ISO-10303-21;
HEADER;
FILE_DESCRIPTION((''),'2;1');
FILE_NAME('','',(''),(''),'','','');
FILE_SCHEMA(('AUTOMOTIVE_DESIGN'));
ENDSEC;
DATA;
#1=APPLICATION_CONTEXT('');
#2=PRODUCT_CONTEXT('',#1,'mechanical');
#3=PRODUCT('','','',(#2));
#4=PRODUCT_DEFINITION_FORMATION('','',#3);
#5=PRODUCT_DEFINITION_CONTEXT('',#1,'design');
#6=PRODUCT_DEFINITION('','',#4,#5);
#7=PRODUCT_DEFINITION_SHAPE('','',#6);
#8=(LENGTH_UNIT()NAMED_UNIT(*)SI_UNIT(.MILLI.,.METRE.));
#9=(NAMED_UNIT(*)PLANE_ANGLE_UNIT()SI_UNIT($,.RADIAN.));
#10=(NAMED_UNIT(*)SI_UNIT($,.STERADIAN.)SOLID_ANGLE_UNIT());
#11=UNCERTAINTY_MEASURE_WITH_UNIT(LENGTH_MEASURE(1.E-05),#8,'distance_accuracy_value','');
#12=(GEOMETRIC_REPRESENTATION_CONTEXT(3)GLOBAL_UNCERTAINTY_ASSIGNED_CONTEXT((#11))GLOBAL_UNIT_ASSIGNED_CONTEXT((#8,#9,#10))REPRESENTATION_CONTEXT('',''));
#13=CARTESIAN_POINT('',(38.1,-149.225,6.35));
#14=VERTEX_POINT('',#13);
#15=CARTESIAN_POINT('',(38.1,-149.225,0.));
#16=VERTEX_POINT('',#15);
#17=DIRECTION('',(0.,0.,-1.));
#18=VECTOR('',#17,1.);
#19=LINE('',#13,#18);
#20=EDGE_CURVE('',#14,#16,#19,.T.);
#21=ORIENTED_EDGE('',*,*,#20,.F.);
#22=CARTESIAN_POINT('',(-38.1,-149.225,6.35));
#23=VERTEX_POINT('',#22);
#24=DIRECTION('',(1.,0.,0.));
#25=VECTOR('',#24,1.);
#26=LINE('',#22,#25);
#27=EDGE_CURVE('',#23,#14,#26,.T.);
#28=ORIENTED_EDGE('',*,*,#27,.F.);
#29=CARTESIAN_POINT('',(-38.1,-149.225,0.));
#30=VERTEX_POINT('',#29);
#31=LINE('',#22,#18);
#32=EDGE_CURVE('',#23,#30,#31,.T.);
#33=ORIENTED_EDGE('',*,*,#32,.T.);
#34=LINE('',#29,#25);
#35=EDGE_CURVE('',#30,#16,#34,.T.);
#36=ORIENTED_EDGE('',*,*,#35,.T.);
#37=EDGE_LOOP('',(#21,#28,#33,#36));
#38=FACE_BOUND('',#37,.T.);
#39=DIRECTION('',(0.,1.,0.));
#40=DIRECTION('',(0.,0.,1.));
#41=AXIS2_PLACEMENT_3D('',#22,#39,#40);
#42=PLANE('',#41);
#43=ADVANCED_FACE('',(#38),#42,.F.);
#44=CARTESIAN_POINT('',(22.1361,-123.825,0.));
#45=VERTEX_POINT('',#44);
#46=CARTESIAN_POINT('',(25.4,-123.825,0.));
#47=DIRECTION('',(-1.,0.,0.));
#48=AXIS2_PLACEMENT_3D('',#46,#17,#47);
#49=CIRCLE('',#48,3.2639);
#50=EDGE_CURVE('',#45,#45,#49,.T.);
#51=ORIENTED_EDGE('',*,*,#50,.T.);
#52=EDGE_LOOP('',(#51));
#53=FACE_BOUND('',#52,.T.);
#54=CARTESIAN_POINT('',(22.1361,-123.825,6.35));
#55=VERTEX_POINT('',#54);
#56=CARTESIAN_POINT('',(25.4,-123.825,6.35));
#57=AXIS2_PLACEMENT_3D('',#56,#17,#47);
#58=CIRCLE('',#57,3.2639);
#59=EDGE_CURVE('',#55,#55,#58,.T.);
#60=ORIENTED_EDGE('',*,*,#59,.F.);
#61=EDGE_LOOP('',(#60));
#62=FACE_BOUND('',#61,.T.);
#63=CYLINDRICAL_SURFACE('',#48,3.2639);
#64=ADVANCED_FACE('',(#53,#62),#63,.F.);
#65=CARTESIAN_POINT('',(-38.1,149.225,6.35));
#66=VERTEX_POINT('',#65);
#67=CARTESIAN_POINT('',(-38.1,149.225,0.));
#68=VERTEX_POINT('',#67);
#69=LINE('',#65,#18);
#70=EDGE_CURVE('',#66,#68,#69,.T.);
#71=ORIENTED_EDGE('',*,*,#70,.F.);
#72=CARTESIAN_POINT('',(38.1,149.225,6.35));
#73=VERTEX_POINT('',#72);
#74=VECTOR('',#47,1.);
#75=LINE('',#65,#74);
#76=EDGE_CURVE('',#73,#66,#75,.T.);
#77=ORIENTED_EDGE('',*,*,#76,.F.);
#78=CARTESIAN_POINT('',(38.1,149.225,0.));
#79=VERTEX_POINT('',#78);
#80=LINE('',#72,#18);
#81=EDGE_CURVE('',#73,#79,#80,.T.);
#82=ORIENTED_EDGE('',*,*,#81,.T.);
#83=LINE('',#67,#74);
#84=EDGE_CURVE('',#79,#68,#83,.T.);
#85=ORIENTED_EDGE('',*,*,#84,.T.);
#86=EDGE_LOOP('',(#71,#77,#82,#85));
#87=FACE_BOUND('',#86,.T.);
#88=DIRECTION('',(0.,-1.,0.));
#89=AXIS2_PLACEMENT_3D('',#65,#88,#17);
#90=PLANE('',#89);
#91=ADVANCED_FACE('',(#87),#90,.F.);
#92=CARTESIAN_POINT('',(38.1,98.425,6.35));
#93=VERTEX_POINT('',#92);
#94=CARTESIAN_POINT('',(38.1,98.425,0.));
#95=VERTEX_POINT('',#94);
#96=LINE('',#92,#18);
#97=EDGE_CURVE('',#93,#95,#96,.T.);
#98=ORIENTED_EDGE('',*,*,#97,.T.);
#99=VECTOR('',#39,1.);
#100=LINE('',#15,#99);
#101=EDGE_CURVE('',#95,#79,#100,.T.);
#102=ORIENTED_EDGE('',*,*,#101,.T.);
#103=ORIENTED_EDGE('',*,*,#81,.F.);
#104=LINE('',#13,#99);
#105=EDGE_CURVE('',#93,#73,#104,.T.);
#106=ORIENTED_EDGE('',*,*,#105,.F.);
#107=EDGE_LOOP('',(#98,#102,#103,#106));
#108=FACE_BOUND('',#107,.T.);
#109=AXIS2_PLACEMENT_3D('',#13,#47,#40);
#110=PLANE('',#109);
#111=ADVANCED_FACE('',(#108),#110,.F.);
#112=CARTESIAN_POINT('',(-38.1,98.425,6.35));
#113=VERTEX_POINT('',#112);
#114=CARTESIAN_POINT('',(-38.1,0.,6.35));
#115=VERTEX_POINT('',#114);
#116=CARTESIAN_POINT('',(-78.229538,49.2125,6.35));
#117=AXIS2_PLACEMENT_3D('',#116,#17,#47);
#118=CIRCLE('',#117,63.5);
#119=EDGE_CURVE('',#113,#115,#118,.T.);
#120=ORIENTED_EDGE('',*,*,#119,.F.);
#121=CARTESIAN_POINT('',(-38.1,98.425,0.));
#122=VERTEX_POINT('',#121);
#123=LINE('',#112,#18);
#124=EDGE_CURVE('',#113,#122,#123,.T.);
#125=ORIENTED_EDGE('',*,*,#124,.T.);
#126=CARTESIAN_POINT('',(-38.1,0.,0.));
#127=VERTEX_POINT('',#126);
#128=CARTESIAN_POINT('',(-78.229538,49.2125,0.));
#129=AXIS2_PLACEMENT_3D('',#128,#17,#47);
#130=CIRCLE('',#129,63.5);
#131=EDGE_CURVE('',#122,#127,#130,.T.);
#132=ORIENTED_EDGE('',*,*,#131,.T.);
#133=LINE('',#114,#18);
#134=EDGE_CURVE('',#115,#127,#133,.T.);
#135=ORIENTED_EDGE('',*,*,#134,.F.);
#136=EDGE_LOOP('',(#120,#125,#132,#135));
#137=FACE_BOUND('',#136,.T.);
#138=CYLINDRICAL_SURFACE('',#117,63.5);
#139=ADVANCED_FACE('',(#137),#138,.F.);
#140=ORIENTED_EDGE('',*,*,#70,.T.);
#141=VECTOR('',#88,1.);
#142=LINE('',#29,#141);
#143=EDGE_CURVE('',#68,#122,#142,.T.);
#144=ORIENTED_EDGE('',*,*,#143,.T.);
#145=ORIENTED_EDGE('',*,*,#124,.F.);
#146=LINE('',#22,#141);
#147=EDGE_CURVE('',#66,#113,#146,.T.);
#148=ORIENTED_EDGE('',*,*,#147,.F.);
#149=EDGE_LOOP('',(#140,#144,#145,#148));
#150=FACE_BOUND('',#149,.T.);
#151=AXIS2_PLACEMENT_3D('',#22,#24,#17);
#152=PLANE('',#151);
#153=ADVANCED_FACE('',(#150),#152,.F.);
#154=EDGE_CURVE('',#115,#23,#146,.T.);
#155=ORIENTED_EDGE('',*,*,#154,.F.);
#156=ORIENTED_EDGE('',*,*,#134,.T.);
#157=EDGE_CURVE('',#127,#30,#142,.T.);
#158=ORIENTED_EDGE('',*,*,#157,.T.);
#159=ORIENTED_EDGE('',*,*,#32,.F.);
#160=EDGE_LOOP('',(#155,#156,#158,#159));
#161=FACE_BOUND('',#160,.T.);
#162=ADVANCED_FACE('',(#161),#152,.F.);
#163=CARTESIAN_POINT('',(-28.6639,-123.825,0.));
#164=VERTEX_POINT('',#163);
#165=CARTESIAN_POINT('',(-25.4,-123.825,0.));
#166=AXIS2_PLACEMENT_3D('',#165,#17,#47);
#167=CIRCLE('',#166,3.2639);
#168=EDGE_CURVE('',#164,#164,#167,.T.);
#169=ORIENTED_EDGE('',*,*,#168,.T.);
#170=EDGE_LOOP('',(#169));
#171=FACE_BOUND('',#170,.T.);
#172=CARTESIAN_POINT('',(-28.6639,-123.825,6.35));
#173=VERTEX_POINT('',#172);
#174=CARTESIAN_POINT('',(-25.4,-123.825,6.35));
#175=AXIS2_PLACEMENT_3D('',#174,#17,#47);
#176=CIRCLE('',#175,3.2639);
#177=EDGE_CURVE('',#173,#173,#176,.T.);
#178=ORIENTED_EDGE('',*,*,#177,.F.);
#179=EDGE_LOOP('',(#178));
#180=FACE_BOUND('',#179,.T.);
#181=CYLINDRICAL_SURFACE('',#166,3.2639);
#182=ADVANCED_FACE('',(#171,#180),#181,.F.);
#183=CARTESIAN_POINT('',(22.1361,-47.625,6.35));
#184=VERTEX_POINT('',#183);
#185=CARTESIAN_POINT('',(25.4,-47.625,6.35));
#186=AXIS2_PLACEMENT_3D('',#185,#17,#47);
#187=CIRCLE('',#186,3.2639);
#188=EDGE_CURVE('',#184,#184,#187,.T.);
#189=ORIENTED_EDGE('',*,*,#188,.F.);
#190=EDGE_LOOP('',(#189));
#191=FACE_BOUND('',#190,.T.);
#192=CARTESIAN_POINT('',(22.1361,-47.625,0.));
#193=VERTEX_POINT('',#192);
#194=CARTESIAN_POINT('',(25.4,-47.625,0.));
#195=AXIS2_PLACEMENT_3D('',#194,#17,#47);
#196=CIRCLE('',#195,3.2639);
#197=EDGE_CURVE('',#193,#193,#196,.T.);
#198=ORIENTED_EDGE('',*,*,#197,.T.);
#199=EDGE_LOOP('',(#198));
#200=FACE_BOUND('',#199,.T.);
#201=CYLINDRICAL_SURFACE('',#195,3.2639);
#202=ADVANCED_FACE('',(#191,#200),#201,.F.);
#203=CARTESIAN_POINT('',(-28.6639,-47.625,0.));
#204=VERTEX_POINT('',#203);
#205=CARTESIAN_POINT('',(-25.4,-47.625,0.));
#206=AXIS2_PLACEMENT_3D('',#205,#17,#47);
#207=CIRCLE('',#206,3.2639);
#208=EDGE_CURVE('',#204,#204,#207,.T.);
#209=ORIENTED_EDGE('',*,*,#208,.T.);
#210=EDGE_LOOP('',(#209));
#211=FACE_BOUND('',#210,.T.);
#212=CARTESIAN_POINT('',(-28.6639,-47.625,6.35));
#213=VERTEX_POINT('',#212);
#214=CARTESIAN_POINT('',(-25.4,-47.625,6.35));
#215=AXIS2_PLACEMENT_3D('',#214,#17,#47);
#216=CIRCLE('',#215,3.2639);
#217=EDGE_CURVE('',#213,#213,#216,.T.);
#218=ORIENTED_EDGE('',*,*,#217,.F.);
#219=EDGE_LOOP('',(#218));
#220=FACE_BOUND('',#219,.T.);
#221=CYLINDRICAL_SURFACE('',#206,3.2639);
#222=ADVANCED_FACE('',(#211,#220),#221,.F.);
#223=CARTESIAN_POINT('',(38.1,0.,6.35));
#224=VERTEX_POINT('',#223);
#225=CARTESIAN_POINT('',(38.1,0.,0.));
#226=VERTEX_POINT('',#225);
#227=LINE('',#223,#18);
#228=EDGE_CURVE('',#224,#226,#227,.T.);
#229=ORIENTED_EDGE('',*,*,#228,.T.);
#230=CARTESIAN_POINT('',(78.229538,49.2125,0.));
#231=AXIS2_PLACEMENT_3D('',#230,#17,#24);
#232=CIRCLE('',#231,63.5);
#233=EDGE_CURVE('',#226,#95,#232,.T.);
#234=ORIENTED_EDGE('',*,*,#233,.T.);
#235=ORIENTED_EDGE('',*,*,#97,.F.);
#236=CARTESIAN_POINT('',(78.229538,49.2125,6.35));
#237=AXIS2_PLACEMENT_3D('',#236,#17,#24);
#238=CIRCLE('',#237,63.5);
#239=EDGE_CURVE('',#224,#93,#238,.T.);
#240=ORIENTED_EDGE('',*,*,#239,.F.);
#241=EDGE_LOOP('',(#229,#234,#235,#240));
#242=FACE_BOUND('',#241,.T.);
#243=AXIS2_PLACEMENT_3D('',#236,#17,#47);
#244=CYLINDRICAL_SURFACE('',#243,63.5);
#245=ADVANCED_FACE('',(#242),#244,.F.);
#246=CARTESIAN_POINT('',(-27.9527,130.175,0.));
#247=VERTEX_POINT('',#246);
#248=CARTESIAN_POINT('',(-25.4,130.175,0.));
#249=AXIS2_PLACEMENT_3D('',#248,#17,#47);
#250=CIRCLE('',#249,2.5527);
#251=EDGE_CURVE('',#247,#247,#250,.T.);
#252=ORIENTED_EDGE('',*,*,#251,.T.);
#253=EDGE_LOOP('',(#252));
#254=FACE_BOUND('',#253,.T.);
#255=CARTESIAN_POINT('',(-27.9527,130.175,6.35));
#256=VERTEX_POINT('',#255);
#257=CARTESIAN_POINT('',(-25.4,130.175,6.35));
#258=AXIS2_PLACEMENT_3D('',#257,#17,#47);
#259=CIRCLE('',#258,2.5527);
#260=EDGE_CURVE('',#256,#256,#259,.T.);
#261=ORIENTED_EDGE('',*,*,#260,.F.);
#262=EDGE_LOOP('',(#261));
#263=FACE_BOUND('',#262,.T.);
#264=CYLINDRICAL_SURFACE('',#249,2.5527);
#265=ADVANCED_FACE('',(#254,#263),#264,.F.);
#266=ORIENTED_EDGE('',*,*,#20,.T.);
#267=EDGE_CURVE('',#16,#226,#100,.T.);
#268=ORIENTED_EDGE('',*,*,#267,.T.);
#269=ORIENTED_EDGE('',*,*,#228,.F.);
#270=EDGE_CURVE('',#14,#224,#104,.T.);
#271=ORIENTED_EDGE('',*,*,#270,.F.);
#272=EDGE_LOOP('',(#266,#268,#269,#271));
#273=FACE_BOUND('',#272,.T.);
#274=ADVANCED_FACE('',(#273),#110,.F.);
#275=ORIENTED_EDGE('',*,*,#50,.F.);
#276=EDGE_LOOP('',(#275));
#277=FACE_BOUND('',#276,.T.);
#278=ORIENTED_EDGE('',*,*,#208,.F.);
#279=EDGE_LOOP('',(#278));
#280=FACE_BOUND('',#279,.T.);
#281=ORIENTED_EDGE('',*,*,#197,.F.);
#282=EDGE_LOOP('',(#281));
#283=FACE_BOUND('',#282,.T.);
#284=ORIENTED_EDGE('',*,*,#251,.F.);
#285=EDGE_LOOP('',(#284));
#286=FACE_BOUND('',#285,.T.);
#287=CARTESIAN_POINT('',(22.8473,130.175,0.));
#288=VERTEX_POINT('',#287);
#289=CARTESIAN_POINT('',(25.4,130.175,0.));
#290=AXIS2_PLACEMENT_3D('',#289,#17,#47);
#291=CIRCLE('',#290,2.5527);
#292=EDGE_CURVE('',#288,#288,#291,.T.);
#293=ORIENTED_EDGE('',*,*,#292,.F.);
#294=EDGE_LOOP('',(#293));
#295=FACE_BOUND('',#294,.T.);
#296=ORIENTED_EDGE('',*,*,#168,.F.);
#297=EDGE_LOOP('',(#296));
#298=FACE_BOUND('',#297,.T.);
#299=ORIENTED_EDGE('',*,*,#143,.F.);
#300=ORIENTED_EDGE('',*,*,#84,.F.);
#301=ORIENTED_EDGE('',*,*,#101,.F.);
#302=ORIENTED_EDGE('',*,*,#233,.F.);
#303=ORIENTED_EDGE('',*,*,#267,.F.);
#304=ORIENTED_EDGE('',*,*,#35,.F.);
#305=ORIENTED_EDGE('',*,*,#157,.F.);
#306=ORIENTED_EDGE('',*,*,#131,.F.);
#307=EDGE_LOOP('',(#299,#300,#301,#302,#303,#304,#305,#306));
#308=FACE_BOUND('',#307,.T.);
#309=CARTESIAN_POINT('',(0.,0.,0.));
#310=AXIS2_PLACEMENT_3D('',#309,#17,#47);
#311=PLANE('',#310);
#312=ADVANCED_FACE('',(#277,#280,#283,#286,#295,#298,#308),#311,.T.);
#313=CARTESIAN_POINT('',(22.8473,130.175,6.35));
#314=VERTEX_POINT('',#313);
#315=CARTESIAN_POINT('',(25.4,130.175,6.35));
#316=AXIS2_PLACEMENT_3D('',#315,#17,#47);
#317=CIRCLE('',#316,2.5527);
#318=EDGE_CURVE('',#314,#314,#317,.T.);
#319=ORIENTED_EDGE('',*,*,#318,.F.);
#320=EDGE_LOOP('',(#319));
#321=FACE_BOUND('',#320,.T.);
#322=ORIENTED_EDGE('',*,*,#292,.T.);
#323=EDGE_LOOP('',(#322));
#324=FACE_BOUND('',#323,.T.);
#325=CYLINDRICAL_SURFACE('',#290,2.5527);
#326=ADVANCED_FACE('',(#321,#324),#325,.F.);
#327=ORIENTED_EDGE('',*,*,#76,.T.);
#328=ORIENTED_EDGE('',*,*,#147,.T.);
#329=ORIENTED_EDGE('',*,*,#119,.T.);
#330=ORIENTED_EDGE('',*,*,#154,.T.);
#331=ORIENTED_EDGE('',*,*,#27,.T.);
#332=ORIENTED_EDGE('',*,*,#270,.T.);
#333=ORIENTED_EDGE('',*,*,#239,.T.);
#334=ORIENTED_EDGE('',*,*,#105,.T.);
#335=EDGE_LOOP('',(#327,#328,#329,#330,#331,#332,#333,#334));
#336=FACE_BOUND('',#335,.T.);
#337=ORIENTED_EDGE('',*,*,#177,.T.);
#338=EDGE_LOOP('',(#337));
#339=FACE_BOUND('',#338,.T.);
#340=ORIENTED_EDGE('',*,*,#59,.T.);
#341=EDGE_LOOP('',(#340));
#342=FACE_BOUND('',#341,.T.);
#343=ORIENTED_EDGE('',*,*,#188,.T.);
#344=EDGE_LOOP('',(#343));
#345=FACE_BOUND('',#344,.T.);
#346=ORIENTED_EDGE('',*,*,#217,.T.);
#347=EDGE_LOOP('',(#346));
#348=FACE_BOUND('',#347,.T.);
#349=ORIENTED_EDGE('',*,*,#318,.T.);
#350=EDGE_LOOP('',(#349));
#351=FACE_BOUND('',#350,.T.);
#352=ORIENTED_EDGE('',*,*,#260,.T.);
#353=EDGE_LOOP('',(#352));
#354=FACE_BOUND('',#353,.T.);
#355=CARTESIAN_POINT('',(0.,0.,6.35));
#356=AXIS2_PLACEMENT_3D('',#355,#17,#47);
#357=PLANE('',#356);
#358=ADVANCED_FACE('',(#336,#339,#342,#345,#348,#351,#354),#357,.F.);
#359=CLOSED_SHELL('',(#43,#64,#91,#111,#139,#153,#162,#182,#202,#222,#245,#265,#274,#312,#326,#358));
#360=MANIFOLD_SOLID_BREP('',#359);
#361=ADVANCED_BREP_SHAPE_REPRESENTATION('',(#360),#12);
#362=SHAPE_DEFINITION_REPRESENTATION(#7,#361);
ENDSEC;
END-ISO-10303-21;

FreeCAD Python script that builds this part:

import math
import FreeCAD as App
import Part
import Sketcher
Q = App.Units.Quantity


def add_polygon(sketch, points):
    """Adds a closed chain of lines whose ends are joined by coincident constraints."""
    first, n = sketch.GeometryCount, len(points)
    for a, b in zip(points, points[1:] + points[:1]):
        sketch.addGeometry(Part.LineSegment(App.Vector(*a, 0), App.Vector(*b, 0)), False)
    for i in range(n):
        sketch.addConstraint(Sketcher.Constraint("Coincident", first + i, 2, first + (i + 1) % n, 1))

doc = App.newDocument("Part")
body = doc.addObject("PartDesign::Body", "Body")

# Sketch on XY plane
sketch1 = body.newObject("Sketcher::SketchObject", "Sketch")
sketch1.AttachmentSupport = (doc.getObject("XY_Plane"), [""])
sketch1.MapMode = "FlatFace"
add_polygon(sketch1, [(-38, 149), (-38, -149), (38, -149), (38, 149)])  # lines 0-3
sketch1.addConstraint(Sketcher.Constraint("Vertical", 0))
sketch1.addConstraint(Sketcher.Constraint("Horizontal", 1))
sketch1.addConstraint(Sketcher.Constraint("Vertical", 2))
sketch1.addConstraint(Sketcher.Constraint("Horizontal", 3))
sketch1.addConstraint(Sketcher.Constraint("Symmetric", 0, 2, 2, 2, -1, 1))
sketch1.addConstraint(Sketcher.Constraint("DistanceX", 1, 1, 1, 2, Q("3 in")))
sketch1.addConstraint(Sketcher.Constraint("DistanceY", 0, 2, 0, 1, Q("11.75 in")))
pad1 = body.newObject("PartDesign::Pad", "Pad")
pad1.Profile = sketch1
pad1.Length = Q("0.25 in")

# Sketch on XY plane
sketch2 = body.newObject("Sketcher::SketchObject", "Sketch001")
sketch2.AttachmentSupport = (doc.getObject("XY_Plane"), [""])
sketch2.MapMode = "FlatFace"
sketch2.addGeometry(Part.Circle(App.Vector(25.4, 130.2, 0), App.Vector(0, 0, 1), 2.6), False)
sketch2.addGeometry(Part.Circle(App.Vector(-25.4, 130.2, 0), App.Vector(0, 0, 1), 2.6), False)
sketch2.addGeometry(Part.Circle(App.Vector(-25.4, -47.6, 0), App.Vector(0, 0, 1), 2.6), False)
sketch2.addGeometry(Part.Circle(App.Vector(-25.4, -123.8, 0), App.Vector(0, 0, 1), 2.6), False)
sketch2.addGeometry(Part.Circle(App.Vector(25.4, -123.8, 0), App.Vector(0, 0, 1), 2.6), False)
sketch2.addGeometry(Part.Circle(App.Vector(25.4, -47.6, 0), App.Vector(0, 0, 1), 2.6), False)
sketch2.addConstraint(Sketcher.Constraint("Equal", 0, 1))
sketch2.addConstraint(Sketcher.Constraint("Equal", 1, 2))
sketch2.addConstraint(Sketcher.Constraint("Equal", 2, 3))
sketch2.addConstraint(Sketcher.Constraint("Equal", 3, 4))
sketch2.addConstraint(Sketcher.Constraint("Equal", 4, 5))
sketch2.addConstraint(Sketcher.Constraint("Symmetric", 0, 3, 1, 3, -2))
sketch2.addConstraint(Sketcher.Constraint("Symmetric", 3, 3, 4, 3, -2))
sketch2.addConstraint(Sketcher.Constraint("Symmetric", 2, 3, 5, 3, -2))
sketch2.addConstraint(Sketcher.Constraint("Vertical", 1, 3, 2, 3))
sketch2.addConstraint(Sketcher.Constraint("Vertical", 2, 3, 3, 3))
sketch2.addConstraint(Sketcher.Constraint("Diameter", 0, Q("0.201 in")))
sketch2.addConstraint(Sketcher.Constraint("DistanceX", -1, 1, 0, 3, Q("1 in")))
sketch2.addConstraint(Sketcher.Constraint("DistanceY", 2, 3, 1, 3, Q("7 in")))
sketch2.addConstraint(Sketcher.Constraint("DistanceY", 3, 3, 2, 3, Q("3 in")))
sketch2.addConstraint(Sketcher.Constraint("DistanceY", -1, 1, 0, 3, Q("5.125 in")))
doc.recompute()
hole = body.newObject("PartDesign::Hole", "Hole")
hole.Profile = sketch2
hole.ThreadType = "None"
hole.Diameter = Q("0.201 in")
hole.DepthType = "Dimension"
hole.Depth = Q("0.25 in")
hole.DrillPoint = "Flat"
hole.Reversed = True

# Sketch on XY plane
sketch3 = body.newObject("Sketcher::SketchObject", "Sketch002")
sketch3.AttachmentSupport = (doc.getObject("XY_Plane"), [""])
sketch3.MapMode = "FlatFace"
sketch3.addGeometry(Part.LineSegment(App.Vector(38, 98, 0), App.Vector(38, 0, 0)), False)
sketch3.addGeometry(Part.ArcOfCircle(Part.Circle(App.Vector(78, 49, 0), App.Vector(0, 0, 1), 64), math.radians(129), math.radians(231)), False)
sketch3.addGeometry(Part.LineSegment(App.Vector(-38, 0, 0), App.Vector(-38, 98, 0)), False)
sketch3.addGeometry(Part.ArcOfCircle(Part.Circle(App.Vector(-78, 49, 0), App.Vector(0, 0, 1), 64), math.radians(-51), math.radians(51)), False)
sketch3.addConstraint(Sketcher.Constraint("Coincident", 0, 1, 1, 1))
sketch3.addConstraint(Sketcher.Constraint("Coincident", 1, 2, 0, 2))
sketch3.addConstraint(Sketcher.Constraint("Coincident", 2, 1, 3, 1))
sketch3.addConstraint(Sketcher.Constraint("Coincident", 3, 2, 2, 2))
sketch3.addConstraint(Sketcher.Constraint("Vertical", 0))
sketch3.addConstraint(Sketcher.Constraint("Vertical", 2))
sketch3.addConstraint(Sketcher.Constraint("Equal", 1, 3))
sketch3.addConstraint(Sketcher.Constraint("Symmetric", 1, 2, 2, 1, -1, 1))
sketch3.addConstraint(Sketcher.Constraint("Symmetric", 1, 3, 3, 3, -2))
sketch3.addConstraint(Sketcher.Constraint("Radius", 1, Q("2.5 in")))
sketch3.addConstraint(Sketcher.Constraint("DistanceX", 2, 1, 1, 2, Q("3 in")))
sketch3.addConstraint(Sketcher.Constraint("DistanceY", 0, 2, 0, 1, Q("3.875 in")))
pocket1 = body.newObject("PartDesign::Pocket", "Pocket")
pocket1.Profile = sketch3
pocket1.Type = "ThroughAll"
pocket1.Reversed = True

# Sketch on XY plane
sketch4 = body.newObject("Sketcher::SketchObject", "Sketch003")
sketch4.AttachmentSupport = (doc.getObject("XY_Plane"), [""])
sketch4.MapMode = "FlatFace"
sketch4.addGeometry(Part.Circle(App.Vector(25.4, -47.6, 0), App.Vector(0, 0, 1), 3.3), False)
sketch4.addGeometry(Part.Circle(App.Vector(-25.4, -47.6, 0), App.Vector(0, 0, 1), 3.3), False)
sketch4.addGeometry(Part.Circle(App.Vector(-25.4, -123.8, 0), App.Vector(0, 0, 1), 3.3), False)
sketch4.addGeometry(Part.Circle(App.Vector(25.4, -123.8, 0), App.Vector(0, 0, 1), 3.3), False)
sketch4.addConstraint(Sketcher.Constraint("Equal", 0, 1))
sketch4.addConstraint(Sketcher.Constraint("Equal", 1, 2))
sketch4.addConstraint(Sketcher.Constraint("Equal", 2, 3))
sketch4.addConstraint(Sketcher.Constraint("Symmetric", 0, 3, 1, 3, -2))
sketch4.addConstraint(Sketcher.Constraint("Symmetric", 2, 3, 3, 3, -2))
sketch4.addConstraint(Sketcher.Constraint("Vertical", 1, 3, 2, 3))
sketch4.addConstraint(Sketcher.Constraint("Diameter", 0, Q("0.257 in")))
sketch4.addConstraint(Sketcher.Constraint("DistanceX", -1, 1, 0, 3, Q("1 in")))
sketch4.addConstraint(Sketcher.Constraint("DistanceY", 2, 3, 1, 3, Q("3 in")))
sketch4.addConstraint(Sketcher.Constraint("DistanceY", 0, 3, -1, 1, Q("1.875 in")))
doc.recompute()
hole2 = body.newObject("PartDesign::Hole", "Hole001")
hole2.Profile = sketch4
hole2.ThreadType = "None"
hole2.Diameter = Q("0.257 in")
hole2.DepthType = "ThroughAll"
hole2.Reversed = True

doc.recompute()
